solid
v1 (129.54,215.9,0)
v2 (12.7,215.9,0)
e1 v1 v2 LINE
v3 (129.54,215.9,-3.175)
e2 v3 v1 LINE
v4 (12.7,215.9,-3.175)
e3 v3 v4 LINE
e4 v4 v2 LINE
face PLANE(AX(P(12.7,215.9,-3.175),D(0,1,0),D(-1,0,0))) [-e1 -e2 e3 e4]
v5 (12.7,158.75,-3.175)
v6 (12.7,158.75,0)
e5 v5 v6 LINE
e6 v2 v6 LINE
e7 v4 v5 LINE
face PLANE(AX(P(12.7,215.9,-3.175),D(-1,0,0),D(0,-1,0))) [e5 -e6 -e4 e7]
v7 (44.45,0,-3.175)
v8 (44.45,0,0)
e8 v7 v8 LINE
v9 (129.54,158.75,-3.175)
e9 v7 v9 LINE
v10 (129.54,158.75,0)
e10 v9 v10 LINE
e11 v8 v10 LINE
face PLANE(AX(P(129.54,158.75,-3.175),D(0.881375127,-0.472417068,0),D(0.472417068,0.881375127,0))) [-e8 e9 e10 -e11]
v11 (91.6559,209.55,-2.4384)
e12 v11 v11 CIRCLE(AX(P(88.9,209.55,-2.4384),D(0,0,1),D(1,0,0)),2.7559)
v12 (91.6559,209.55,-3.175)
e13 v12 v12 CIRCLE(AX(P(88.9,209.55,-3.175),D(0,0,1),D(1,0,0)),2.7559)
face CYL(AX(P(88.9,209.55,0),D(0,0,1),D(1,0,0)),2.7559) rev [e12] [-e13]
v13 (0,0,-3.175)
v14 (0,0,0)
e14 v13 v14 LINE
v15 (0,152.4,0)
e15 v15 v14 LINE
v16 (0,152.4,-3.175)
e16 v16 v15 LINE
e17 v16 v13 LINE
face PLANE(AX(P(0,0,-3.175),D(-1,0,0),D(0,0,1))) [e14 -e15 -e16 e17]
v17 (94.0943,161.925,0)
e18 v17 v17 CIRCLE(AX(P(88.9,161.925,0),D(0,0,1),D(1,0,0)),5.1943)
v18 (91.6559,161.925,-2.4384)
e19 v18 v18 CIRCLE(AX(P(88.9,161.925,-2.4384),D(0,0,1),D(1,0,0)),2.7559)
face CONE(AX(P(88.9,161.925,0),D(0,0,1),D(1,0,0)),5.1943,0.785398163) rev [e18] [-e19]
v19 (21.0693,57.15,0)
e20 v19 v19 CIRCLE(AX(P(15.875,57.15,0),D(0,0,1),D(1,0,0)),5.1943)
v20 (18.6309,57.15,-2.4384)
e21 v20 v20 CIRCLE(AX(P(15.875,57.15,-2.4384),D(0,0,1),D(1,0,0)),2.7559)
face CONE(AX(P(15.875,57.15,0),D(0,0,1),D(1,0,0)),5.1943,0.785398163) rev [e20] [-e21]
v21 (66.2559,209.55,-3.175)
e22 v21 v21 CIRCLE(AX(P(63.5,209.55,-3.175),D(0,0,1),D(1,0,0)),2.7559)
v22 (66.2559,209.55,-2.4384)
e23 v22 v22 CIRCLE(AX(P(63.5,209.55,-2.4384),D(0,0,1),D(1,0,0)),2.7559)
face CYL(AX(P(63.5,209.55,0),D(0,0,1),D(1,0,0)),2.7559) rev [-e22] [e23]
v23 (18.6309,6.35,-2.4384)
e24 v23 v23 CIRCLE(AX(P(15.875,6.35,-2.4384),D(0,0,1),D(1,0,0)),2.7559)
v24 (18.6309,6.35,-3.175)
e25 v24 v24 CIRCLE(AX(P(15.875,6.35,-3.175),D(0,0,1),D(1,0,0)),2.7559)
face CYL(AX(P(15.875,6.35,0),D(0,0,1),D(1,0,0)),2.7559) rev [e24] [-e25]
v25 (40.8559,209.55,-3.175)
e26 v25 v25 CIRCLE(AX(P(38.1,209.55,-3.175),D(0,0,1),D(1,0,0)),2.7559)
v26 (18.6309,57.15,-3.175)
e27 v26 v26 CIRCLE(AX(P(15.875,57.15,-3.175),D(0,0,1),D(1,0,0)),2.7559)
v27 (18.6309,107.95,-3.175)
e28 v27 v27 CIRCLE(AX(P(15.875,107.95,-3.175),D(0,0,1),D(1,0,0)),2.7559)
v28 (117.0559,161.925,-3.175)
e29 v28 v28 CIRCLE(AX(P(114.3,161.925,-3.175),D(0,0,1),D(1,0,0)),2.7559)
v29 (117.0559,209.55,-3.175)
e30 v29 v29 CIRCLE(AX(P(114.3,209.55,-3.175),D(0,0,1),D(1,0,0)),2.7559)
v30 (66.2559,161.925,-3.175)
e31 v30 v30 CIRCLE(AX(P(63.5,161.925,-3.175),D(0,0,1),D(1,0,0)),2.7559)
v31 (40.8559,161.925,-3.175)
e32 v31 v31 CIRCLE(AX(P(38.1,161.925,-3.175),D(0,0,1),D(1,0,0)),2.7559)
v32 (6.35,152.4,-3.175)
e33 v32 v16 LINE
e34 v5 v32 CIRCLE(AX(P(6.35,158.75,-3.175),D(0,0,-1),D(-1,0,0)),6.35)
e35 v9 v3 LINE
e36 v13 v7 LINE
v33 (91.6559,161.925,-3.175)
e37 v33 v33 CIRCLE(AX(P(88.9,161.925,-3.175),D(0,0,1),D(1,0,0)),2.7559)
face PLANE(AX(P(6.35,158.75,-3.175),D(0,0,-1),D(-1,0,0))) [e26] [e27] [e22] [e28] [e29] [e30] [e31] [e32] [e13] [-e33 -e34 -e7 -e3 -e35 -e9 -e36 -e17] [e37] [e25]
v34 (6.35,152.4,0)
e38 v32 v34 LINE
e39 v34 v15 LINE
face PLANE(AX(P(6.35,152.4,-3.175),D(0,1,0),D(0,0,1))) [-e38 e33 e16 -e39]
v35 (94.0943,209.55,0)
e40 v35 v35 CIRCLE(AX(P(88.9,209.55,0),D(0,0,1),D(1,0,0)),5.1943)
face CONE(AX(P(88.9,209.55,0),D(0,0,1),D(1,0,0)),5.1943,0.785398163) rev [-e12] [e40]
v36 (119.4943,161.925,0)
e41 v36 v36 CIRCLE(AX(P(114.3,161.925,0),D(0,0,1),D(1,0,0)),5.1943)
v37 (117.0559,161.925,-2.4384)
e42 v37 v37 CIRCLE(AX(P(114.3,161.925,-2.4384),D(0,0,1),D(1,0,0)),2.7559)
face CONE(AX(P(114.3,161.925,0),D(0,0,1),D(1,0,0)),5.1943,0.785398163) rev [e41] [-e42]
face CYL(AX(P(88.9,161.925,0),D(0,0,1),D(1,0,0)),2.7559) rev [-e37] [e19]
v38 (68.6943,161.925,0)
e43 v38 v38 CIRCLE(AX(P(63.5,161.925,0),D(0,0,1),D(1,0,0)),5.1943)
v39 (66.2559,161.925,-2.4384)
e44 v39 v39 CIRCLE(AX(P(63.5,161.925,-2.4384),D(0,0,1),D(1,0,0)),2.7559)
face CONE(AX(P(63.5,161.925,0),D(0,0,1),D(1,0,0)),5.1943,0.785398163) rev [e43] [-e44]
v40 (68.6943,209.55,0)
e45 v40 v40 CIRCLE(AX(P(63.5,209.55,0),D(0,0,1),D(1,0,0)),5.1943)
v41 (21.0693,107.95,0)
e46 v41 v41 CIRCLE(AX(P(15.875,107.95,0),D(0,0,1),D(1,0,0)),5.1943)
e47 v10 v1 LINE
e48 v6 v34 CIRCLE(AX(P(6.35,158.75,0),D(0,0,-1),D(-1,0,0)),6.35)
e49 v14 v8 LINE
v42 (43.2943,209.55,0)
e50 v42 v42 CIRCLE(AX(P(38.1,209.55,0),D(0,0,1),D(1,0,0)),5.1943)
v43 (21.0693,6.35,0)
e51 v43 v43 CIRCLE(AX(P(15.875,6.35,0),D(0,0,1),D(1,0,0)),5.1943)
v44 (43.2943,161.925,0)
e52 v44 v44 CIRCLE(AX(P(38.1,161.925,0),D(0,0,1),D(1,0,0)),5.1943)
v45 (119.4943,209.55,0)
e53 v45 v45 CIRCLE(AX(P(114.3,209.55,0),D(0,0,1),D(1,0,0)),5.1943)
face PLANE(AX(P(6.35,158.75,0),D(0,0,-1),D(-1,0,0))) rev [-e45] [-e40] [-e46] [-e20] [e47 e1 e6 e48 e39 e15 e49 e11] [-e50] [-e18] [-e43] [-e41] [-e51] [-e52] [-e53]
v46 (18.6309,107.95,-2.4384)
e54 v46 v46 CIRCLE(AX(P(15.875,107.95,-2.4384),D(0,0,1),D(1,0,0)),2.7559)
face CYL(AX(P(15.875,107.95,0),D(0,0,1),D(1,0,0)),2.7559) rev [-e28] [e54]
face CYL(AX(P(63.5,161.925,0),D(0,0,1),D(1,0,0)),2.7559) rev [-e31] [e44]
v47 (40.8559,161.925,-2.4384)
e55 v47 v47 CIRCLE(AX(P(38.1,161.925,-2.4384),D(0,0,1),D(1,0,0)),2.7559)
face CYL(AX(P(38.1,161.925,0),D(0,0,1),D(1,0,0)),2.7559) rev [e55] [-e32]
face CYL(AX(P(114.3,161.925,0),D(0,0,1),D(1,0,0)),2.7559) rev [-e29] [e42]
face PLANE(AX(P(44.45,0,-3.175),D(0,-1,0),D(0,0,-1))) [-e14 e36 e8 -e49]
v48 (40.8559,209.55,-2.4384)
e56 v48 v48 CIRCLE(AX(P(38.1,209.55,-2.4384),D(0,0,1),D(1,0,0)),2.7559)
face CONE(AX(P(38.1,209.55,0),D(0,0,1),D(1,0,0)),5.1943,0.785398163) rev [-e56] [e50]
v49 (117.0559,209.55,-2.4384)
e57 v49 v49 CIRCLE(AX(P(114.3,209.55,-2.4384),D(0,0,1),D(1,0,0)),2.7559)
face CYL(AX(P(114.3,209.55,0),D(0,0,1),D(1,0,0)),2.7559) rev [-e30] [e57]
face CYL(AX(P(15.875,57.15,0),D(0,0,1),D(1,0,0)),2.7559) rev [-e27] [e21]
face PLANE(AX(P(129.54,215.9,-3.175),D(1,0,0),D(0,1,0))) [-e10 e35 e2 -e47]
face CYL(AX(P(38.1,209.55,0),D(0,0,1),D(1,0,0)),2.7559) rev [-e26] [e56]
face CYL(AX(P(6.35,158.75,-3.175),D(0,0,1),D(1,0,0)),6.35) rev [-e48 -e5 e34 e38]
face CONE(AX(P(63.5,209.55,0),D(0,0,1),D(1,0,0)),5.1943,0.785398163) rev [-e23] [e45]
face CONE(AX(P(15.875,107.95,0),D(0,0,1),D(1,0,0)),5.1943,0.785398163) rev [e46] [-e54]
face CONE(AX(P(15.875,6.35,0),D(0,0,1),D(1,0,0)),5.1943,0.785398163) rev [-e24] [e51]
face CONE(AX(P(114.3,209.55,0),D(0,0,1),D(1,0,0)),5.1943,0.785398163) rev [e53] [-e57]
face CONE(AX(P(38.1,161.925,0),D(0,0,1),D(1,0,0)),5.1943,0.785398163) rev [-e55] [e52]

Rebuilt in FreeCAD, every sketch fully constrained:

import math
import FreeCAD as App
import Part
import Sketcher

V = App.Vector
Q = App.Units.Quantity

doc = App.newDocument("Part")
body = doc.addObject("PartDesign::Body", "Body")

# Sketch on XY plane
sketch1 = body.newObject("Sketcher::SketchObject", "Sketch")
sketch1.AttachmentSupport = (doc.getObject("XY_Plane"), [""])
sketch1.MapMode = "FlatFace"
sketch1.addGeometry([
    Part.LineSegment(V(0, 152, 0), V(0, 0, 0)),  # 0
    Part.LineSegment(V(0, 0, 0), V(44, 0, 0)),  # 1
    Part.LineSegment(V(44, 0, 0), V(130, 159, 0)),  # 2
    Part.LineSegment(V(130, 159, 0), V(130, 216, 0)),  # 3
    Part.LineSegment(V(130, 216, 0), V(13, 216, 0)),  # 4
    Part.LineSegment(V(13, 216, 0), V(13, 159, 0)),  # 5
    Part.ArcOfCircle(Part.Circle(V(6, 159, 0), V(0, 0, 1), 6), math.radians(-90), math.radians(0)),  # 6
    Part.LineSegment(V(6, 152, 0), V(0, 152, 0)),  # 7
], False)
sketch1.addConstraint([
    Sketcher.Constraint("Coincident", 0, 2, 1, 1),
    Sketcher.Constraint("Coincident", 1, 2, 2, 1),
    Sketcher.Constraint("Coincident", 2, 2, 3, 1),
    Sketcher.Constraint("Coincident", 3, 2, 4, 1),
    Sketcher.Constraint("Coincident", 4, 2, 5, 1),
    Sketcher.Constraint("Tangent", 5, 2, 6, 2),
    Sketcher.Constraint("Tangent", 6, 1, 7, 1),
    Sketcher.Constraint("Coincident", 7, 2, 0, 1),
    Sketcher.Constraint("Vertical", 0),
    Sketcher.Constraint("Horizontal", 1),
    Sketcher.Constraint("Vertical", 3),
    Sketcher.Constraint("Horizontal", 4),
    Sketcher.Constraint("Vertical", 5),
    Sketcher.Constraint("Horizontal", 7),
    Sketcher.Constraint("Coincident", 0, 2, -1, 1),
    Sketcher.Constraint("Horizontal", 6, 3, 2, 2),
    Sketcher.Constraint("DistanceY", 0, 2, 0, 1, Q("6 in")),
    Sketcher.Constraint("Radius", 6, Q("0.25 in")),
    Sketcher.Constraint("DistanceX", 4, 2, 4, 1, Q("4.6 in")),
    Sketcher.Constraint("DistanceX", 1, 1, 1, 2, Q("1.75 in")),
    Sketcher.Constraint("DistanceX", 7, 2, 7, 1, Q("0.25 in")),
    Sketcher.Constraint("DistanceY", 3, 1, 3, 2, Q("2.25 in")),
])
pad1 = body.newObject("PartDesign::Pad", "Pad")
pad1.Profile = sketch1
pad1.Length = Q("0.125 in")
pad1.Reversed = True

# Sketch on YZ plane
sketch2 = body.newObject("Sketcher::SketchObject", "Sketch001")
sketch2.AttachmentSupport = (doc.getObject("YZ_Plane"), [""])
sketch2.MapMode = "FlatFace"
sketch2.AttachmentOffset = App.Placement(V(0, 0, 1.5 * 25.4), App.Rotation())
sketch2.addGeometry([
    Part.LineSegment(V(209.6, -3.2, 0), V(209.6, 0, 0)),  # 0
    Part.LineSegment(V(209.6, 0, 0), V(204.4, 0, 0)),  # 1
    Part.LineSegment(V(204.4, 0, 0), V(206.8, -2.4, 0)),  # 2
    Part.LineSegment(V(206.8, -2.4, 0), V(206.8, -3.2, 0)),  # 3
    Part.LineSegment(V(206.8, -3.2, 0), V(209.6, -3.2, 0)),  # 4
], False)
sketch2.addGeometry(Part.LineSegment(V(209.6, 0, 0), V(209.6, -3.2, 0)), True)  # axis
sketch2.addConstraint([
    Sketcher.Constraint("Coincident", 0, 2, 1, 1),
    Sketcher.Constraint("Coincident", 1, 2, 2, 1),
    Sketcher.Constraint("Coincident", 2, 2, 3, 1),
    Sketcher.Constraint("Coincident", 3, 2, 4, 1),
    Sketcher.Constraint("Coincident", 4, 2, 0, 1),
    Sketcher.Constraint("Vertical", 0),
    Sketcher.Constraint("Horizontal", 1),
    Sketcher.Constraint("Vertical", 3),
    Sketcher.Constraint("Horizontal", 4),
    Sketcher.Constraint("Vertical", 5),
    Sketcher.Constraint("Coincident", 5, 1, 0, 2),
    Sketcher.Constraint("PointOnObject", 0, 2, -1),
    Sketcher.Constraint("Horizontal", 3, 2, 5, 2),
    Sketcher.Constraint("Angle", 2, Q("-45 deg")),
    Sketcher.Constraint("DistanceY", 0, 1, 0, 2, Q("0.125 in")),
    Sketcher.Constraint("DistanceY", 3, 2, 3, 1, Q("0.029 in")),
    Sketcher.Constraint("DistanceX", -1, 1, 0, 2, Q("8.25 in")),
    Sketcher.Constraint("DistanceX", 1, 2, 1, 1, Q("0.2045 in")),
])
groove = body.newObject("PartDesign::Groove", "Groove")
groove.Profile = sketch2
groove.ReferenceAxis = (sketch2, ["Axis0"])
groove.Angle = 360
doc.recompute()

linearpattern = body.newObject("PartDesign::LinearPattern", "LinearPattern")
linearpattern.Originals = [groove]
linearpattern.Direction = (doc.getObject("Y_Axis"), [""])
linearpattern.Mode = "offset"
linearpattern.Offset = Q("1.875 in")
linearpattern.Occurrences = 2
linearpattern.Reversed = True
body.Tip = linearpattern
doc.recompute()

linearpattern2 = body.newObject("PartDesign::LinearPattern", "LinearPattern001")
linearpattern2.Originals = [groove]
linearpattern2.Direction = (doc.getObject("X_Axis"), [""])
linearpattern2.Mode = "offset"
linearpattern2.Offset = Q("1 in")
linearpattern2.Occurrences = 4
body.Tip = linearpattern2

# Sketch on YZ plane
sketch3 = body.newObject("Sketcher::SketchObject", "Sketch002")
sketch3.AttachmentSupport = (doc.getObject("YZ_Plane"), [""])
sketch3.MapMode = "FlatFace"
sketch3.AttachmentOffset = App.Placement(V(0, 0, 2.5 * 25.4), App.Rotation())
sketch3.addGeometry([
    Part.LineSegment(V(161.9, -3.2, 0), V(161.9, 0, 0)),  # 0
    Part.LineSegment(V(161.9, 0, 0), V(156.7, 0, 0)),  # 1
    Part.LineSegment(V(156.7, 0, 0), V(159.2, -2.4, 0)),  # 2
    Part.LineSegment(V(159.2, -2.4, 0), V(159.2, -3.2, 0)),  # 3
    Part.LineSegment(V(159.2, -3.2, 0), V(161.9, -3.2, 0)),  # 4
], False)
sketch3.addGeometry(Part.LineSegment(V(161.9, 0, 0), V(161.9, -3.2, 0)), True)  # axis
sketch3.addConstraint([
    Sketcher.Constraint("Coincident", 0, 2, 1, 1),
    Sketcher.Constraint("Coincident", 1, 2, 2, 1),
    Sketcher.Constraint("Coincident", 2, 2, 3, 1),
    Sketcher.Constraint("Coincident", 3, 2, 4, 1),
    Sketcher.Constraint("Coincident", 4, 2, 0, 1),
    Sketcher.Constraint("Vertical", 0),
    Sketcher.Constraint("Horizontal", 1),
    Sketcher.Constraint("Vertical", 3),
    Sketcher.Constraint("Horizontal", 4),
    Sketcher.Constraint("Vertical", 5),
    Sketcher.Constraint("Coincident", 5, 1, 0, 2),
    Sketcher.Constraint("PointOnObject", 0, 2, -1),
    Sketcher.Constraint("Horizontal", 3, 2, 5, 2),
    Sketcher.Constraint("Angle", 2, Q("-45 deg")),
    Sketcher.Constraint("DistanceY", 0, 1, 0, 2, Q("0.125 in")),
    Sketcher.Constraint("DistanceY", 3, 2, 3, 1, Q("0.029 in")),
    Sketcher.Constraint("DistanceX", 1, 2, 1, 1, Q("0.2045 in")),
    Sketcher.Constraint("DistanceX", -1, 1, 0, 2, Q("6.375 in")),
])
groove2 = body.newObject("PartDesign::Groove", "Groove001")
groove2.Profile = sketch3
groove2.ReferenceAxis = (sketch3, ["Axis0"])
groove2.Angle = 360

# Sketch on YZ plane
sketch4 = body.newObject("Sketcher::SketchObject", "Sketch003")
sketch4.AttachmentSupport = (doc.getObject("YZ_Plane"), [""])
sketch4.MapMode = "FlatFace"
sketch4.AttachmentOffset = App.Placement(V(0, 0, 3.5 * 25.4), App.Rotation())
sketch4.addGeometry([
    Part.LineSegment(V(161.9, -3.2, 0), V(161.9, 0, 0)),  # 0
    Part.LineSegment(V(161.9, 0, 0), V(156.7, 0, 0)),  # 1
    Part.LineSegment(V(156.7, 0, 0), V(159.2, -2.4, 0)),  # 2
    Part.LineSegment(V(159.2, -2.4, 0), V(159.2, -3.2, 0)),  # 3
    Part.LineSegment(V(159.2, -3.2, 0), V(161.9, -3.2, 0)),  # 4
], False)
sketch4.addGeometry(Part.LineSegment(V(161.9, 0, 0), V(161.9, -3.2, 0)), True)  # axis
sketch4.addConstraint([
    Sketcher.Constraint("Coincident", 0, 2, 1, 1),
    Sketcher.Constraint("Coincident", 1, 2, 2, 1),
    Sketcher.Constraint("Coincident", 2, 2, 3, 1),
    Sketcher.Constraint("Coincident", 3, 2, 4, 1),
    Sketcher.Constraint("Coincident", 4, 2, 0, 1),
    Sketcher.Constraint("Vertical", 0),
    Sketcher.Constraint("Horizontal", 1),
    Sketcher.Constraint("Vertical", 3),
    Sketcher.Constraint("Horizontal", 4),
    Sketcher.Constraint("Vertical", 5),
    Sketcher.Constraint("Coincident", 5, 1, 0, 2),
    Sketcher.Constraint("PointOnObject", 0, 2, -1),
    Sketcher.Constraint("Horizontal", 3, 2, 5, 2),
    Sketcher.Constraint("Angle", 2, Q("-45 deg")),
    Sketcher.Constraint("DistanceY", 0, 1, 0, 2, Q("0.125 in")),
    Sketcher.Constraint("DistanceY", 3, 2, 3, 1, Q("0.029 in")),
    Sketcher.Constraint("DistanceX", 1, 2, 1, 1, Q("0.2045 in")),
    Sketcher.Constraint("DistanceX", -1, 1, 0, 2, Q("6.375 in")),
])
groove3 = body.newObject("PartDesign::Groove", "Groove002")
groove3.Profile = sketch4
groove3.ReferenceAxis = (sketch4, ["Axis0"])
groove3.Angle = 360

# Sketch on YZ plane
sketch5 = body.newObject("Sketcher::SketchObject", "Sketch004")
sketch5.AttachmentSupport = (doc.getObject("YZ_Plane"), [""])
sketch5.MapMode = "FlatFace"
sketch5.AttachmentOffset = App.Placement(V(0, 0, 4.5 * 25.4), App.Rotation())
sketch5.addGeometry([
    Part.LineSegment(V(161.9, -3.2, 0), V(161.9, 0, 0)),  # 0
    Part.LineSegment(V(161.9, 0, 0), V(156.7, 0, 0)),  # 1
    Part.LineSegment(V(156.7, 0, 0), V(159.2, -2.4, 0)),  # 2
    Part.LineSegment(V(159.2, -2.4, 0), V(159.2, -3.2, 0)),  # 3
    Part.LineSegment(V(159.2, -3.2, 0), V(161.9, -3.2, 0)),  # 4
], False)
sketch5.addGeometry(Part.LineSegment(V(161.9, 0, 0), V(161.9, -3.2, 0)), True)  # axis
sketch5.addConstraint([
    Sketcher.Constraint("Coincident", 0, 2, 1, 1),
    Sketcher.Constraint("Coincident", 1, 2, 2, 1),
    Sketcher.Constraint("Coincident", 2, 2, 3, 1),
    Sketcher.Constraint("Coincident", 3, 2, 4, 1),
    Sketcher.Constraint("Coincident", 4, 2, 0, 1),
    Sketcher.Constraint("Vertical", 0),
    Sketcher.Constraint("Horizontal", 1),
    Sketcher.Constraint("Vertical", 3),
    Sketcher.Constraint("Horizontal", 4),
    Sketcher.Constraint("Vertical", 5),
    Sketcher.Constraint("Coincident", 5, 1, 0, 2),
    Sketcher.Constraint("PointOnObject", 0, 2, -1),
    Sketcher.Constraint("Horizontal", 3, 2, 5, 2),
    Sketcher.Constraint("Angle", 2, Q("-45 deg")),
    Sketcher.Constraint("DistanceY", 0, 1, 0, 2, Q("0.125 in")),
    Sketcher.Constraint("DistanceY", 3, 2, 3, 1, Q("0.029 in")),
    Sketcher.Constraint("DistanceX", 1, 2, 1, 1, Q("0.2045 in")),
    Sketcher.Constraint("DistanceX", -1, 1, 0, 2, Q("6.375 in")),
])
groove4 = body.newObject("PartDesign::Groove", "Groove003")
groove4.Profile = sketch5
groove4.ReferenceAxis = (sketch5, ["Axis0"])
groove4.Angle = 360

# Sketch on YZ plane
sketch6 = body.newObject("Sketcher::SketchObject", "Sketch005")
sketch6.AttachmentSupport = (doc.getObject("YZ_Plane"), [""])
sketch6.MapMode = "FlatFace"
sketch6.AttachmentOffset = App.Placement(V(0, 0, 0.625 * 25.4), App.Rotation())
sketch6.addGeometry([
    Part.LineSegment(V(108, -3.2, 0), V(108, 0, 0)),  # 0
    Part.LineSegment(V(108, 0, 0), V(102.8, 0, 0)),  # 1
    Part.LineSegment(V(102.8, 0, 0), V(105.2, -2.4, 0)),  # 2
    Part.LineSegment(V(105.2, -2.4, 0), V(105.2, -3.2, 0)),  # 3
    Part.LineSegment(V(105.2, -3.2, 0), V(108, -3.2, 0)),  # 4
], False)
sketch6.addGeometry(Part.LineSegment(V(108, 0, 0), V(108, -3.2, 0)), True)  # axis
sketch6.addConstraint([
    Sketcher.Constraint("Coincident", 0, 2, 1, 1),
    Sketcher.Constraint("Coincident", 1, 2, 2, 1),
    Sketcher.Constraint("Coincident", 2, 2, 3, 1),
    Sketcher.Constraint("Coincident", 3, 2, 4, 1),
    Sketcher.Constraint("Coincident", 4, 2, 0, 1),
    Sketcher.Constraint("Vertical", 0),
    Sketcher.Constraint("Horizontal", 1),
    Sketcher.Constraint("Vertical", 3),
    Sketcher.Constraint("Horizontal", 4),
    Sketcher.Constraint("Vertical", 5),
    Sketcher.Constraint("Coincident", 5, 1, 0, 2),
    Sketcher.Constraint("PointOnObject", 0, 2, -1),
    Sketcher.Constraint("Horizontal", 3, 2, 5, 2),
    Sketcher.Constraint("Angle", 2, Q("-45 deg")),
    Sketcher.Constraint("DistanceY", 0, 1, 0, 2, Q("0.125 in")),
    Sketcher.Constraint("DistanceY", 3, 2, 3, 1, Q("0.029 in")),
    Sketcher.Constraint("DistanceX", -1, 1, 0, 2, Q("4.25 in")),
    Sketcher.Constraint("DistanceX", 1, 2, 1, 1, Q("0.2045 in")),
])
groove5 = body.newObject("PartDesign::Groove", "Groove004")
groove5.Profile = sketch6
groove5.ReferenceAxis = (sketch6, ["Axis0"])
groove5.Angle = 360
doc.recompute()

linearpattern3 = body.newObject("PartDesign::LinearPattern", "LinearPattern002")
linearpattern3.Originals = [groove5]
linearpattern3.Direction = (doc.getObject("Y_Axis"), [""])
linearpattern3.Mode = "offset"
linearpattern3.Offset = Q("2 in")
linearpattern3.Occurrences = 3
linearpattern3.Reversed = True
body.Tip = linearpattern3

doc.recompute()
